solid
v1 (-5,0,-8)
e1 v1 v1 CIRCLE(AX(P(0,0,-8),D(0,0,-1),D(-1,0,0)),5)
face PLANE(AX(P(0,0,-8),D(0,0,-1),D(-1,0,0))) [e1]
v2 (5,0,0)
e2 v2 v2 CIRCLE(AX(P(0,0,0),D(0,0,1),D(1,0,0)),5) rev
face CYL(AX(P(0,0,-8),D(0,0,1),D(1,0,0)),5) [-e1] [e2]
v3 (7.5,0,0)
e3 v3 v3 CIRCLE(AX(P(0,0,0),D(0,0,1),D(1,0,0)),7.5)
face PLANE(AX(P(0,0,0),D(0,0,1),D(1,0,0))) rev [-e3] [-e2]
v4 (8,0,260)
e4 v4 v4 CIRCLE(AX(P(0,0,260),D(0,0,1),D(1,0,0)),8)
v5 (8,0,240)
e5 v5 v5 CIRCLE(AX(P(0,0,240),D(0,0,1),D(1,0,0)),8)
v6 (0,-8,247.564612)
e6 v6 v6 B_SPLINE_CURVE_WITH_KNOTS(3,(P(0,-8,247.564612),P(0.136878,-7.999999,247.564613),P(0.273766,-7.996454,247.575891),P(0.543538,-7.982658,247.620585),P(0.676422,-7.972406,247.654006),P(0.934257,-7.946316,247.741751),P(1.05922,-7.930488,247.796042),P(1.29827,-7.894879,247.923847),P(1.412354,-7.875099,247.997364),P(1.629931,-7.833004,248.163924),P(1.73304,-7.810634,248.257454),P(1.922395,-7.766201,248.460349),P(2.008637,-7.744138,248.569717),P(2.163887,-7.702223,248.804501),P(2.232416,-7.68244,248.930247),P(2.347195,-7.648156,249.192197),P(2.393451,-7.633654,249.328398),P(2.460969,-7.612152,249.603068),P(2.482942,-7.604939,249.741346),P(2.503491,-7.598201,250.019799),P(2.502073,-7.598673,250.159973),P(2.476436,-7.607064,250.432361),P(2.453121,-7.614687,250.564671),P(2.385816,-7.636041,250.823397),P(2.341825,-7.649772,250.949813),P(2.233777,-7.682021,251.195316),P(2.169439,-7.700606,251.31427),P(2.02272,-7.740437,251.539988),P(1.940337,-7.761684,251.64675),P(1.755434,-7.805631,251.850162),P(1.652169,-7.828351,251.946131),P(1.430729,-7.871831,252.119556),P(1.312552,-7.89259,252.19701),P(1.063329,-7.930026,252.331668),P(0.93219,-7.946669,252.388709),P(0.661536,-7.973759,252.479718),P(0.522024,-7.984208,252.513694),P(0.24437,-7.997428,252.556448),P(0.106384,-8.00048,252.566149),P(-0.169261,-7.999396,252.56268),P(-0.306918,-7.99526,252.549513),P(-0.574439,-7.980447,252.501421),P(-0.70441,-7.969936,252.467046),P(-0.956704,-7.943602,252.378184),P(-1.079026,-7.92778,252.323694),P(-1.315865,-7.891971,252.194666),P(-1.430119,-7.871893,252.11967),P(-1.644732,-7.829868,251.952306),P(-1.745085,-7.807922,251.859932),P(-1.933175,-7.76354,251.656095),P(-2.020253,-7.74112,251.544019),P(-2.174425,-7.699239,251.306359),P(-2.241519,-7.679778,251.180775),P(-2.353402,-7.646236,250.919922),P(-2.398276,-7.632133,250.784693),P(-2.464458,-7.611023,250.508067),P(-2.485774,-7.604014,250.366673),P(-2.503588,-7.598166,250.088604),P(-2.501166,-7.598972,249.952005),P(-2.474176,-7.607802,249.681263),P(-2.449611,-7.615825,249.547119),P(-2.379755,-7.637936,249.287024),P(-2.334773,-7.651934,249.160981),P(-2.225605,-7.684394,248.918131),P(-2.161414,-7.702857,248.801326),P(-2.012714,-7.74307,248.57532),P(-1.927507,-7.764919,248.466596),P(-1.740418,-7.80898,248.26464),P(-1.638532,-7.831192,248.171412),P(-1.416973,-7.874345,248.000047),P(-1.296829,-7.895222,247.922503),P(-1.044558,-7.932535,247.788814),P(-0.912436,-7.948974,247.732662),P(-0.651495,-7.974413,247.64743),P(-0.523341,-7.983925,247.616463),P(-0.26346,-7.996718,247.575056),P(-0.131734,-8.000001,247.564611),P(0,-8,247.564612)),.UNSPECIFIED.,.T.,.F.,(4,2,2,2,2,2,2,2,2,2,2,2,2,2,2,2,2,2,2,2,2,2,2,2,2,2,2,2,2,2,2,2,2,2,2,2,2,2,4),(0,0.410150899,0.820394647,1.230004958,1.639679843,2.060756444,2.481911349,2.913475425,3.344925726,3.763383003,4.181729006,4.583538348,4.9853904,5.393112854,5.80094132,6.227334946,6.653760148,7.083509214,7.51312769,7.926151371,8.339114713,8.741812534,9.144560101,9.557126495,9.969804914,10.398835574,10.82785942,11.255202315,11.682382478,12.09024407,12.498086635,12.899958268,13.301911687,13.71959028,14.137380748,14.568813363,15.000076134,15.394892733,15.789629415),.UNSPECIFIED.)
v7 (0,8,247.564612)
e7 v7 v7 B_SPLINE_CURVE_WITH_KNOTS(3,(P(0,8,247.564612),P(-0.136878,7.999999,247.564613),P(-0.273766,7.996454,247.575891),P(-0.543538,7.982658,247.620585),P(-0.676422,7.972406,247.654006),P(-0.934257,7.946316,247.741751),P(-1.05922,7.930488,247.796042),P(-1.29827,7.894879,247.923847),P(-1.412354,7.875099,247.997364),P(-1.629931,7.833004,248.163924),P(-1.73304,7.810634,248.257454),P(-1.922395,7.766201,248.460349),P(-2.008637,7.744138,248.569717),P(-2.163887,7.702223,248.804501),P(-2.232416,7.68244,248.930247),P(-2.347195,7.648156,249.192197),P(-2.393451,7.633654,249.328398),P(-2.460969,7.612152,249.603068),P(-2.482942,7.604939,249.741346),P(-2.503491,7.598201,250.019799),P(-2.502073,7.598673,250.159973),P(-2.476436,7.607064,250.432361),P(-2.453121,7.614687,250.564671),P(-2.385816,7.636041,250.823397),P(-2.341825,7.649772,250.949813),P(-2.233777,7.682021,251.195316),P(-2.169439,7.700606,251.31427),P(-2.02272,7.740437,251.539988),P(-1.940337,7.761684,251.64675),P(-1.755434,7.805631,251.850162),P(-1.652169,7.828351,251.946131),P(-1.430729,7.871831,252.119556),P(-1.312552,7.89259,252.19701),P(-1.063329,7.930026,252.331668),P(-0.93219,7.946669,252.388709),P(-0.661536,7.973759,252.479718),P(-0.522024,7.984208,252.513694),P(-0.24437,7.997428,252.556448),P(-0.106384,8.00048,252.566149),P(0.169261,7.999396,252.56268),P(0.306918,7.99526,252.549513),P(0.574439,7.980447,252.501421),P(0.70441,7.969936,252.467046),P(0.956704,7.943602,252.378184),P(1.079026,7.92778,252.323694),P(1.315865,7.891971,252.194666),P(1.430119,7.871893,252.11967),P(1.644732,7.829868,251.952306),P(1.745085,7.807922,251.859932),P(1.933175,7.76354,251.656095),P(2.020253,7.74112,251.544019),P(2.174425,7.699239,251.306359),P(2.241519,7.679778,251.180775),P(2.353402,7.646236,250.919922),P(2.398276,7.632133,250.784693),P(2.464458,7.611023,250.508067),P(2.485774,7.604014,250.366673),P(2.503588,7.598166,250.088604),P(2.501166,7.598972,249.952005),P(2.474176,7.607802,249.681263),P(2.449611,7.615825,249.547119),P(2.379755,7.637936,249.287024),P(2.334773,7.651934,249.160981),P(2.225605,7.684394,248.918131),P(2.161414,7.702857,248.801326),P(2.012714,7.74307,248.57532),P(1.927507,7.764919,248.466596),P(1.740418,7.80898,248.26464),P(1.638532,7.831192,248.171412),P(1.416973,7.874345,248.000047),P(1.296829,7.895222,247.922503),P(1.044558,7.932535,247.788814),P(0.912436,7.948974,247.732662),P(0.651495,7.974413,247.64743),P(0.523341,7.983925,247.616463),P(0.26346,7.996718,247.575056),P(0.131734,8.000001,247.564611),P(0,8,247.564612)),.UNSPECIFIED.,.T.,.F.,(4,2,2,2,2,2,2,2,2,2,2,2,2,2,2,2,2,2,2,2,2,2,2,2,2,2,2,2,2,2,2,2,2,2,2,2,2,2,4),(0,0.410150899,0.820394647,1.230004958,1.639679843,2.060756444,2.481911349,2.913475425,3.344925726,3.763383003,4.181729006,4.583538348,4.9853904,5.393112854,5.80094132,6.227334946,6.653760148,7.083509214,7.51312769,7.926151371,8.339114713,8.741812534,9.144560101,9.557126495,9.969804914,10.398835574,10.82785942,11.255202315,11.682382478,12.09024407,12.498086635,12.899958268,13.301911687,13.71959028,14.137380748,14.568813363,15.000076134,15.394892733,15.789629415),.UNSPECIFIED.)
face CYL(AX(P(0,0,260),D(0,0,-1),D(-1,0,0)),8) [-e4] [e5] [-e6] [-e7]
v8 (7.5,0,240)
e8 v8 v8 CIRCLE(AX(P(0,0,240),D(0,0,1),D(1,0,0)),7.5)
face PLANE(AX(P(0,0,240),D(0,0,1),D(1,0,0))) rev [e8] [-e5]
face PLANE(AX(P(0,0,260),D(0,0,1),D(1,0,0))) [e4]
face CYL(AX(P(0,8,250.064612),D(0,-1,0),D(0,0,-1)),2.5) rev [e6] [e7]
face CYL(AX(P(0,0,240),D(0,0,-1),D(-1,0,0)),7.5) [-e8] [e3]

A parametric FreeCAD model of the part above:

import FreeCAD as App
import Part
import Sketcher

V = App.Vector

doc = App.newDocument("Part")
body = doc.addObject("PartDesign::Body", "Body")

# Sketch on XY plane
sketch1 = body.newObject("Sketcher::SketchObject", "Sketch")
sketch1.AttachmentSupport = (doc.getObject("XY_Plane"), [""])
sketch1.MapMode = "FlatFace"
sketch1.addGeometry(Part.Circle(V(0, 0, 0), V(0, 0, 1), 8), False)
sketch1.addConstraint(Sketcher.Constraint("Coincident", 0, 3, -1, 1))
sketch1.addConstraint(Sketcher.Constraint("Diameter", 0, 15.0))
pad1 = body.newObject("PartDesign::Pad", "Pad")
pad1.Profile = sketch1
pad1.Length = 240

# Sketch on XY plane
sketch2 = body.newObject("Sketcher::SketchObject", "Sketch001")
sketch2.AttachmentSupport = (doc.getObject("XY_Plane"), [""])
sketch2.MapMode = "FlatFace"
sketch2.AttachmentOffset = App.Placement(V(0, 0, 240), App.Rotation())
sketch2.addGeometry(Part.Circle(V(0, 0, 0), V(0, 0, 1), 8), False)
sketch2.addConstraint(Sketcher.Constraint("Coincident", 0, 3, -1, 1))
sketch2.addConstraint(Sketcher.Constraint("Diameter", 0, 16.0))
pad2 = body.newObject("PartDesign::Pad", "Pad001")
pad2.Profile = sketch2
pad2.Length = 20

# Sketch on XY plane
sketch3 = body.newObject("Sketcher::SketchObject", "Sketch002")
sketch3.AttachmentSupport = (doc.getObject("XY_Plane"), [""])
sketch3.MapMode = "FlatFace"
sketch3.addGeometry(Part.Circle(V(0, 0, 0), V(0, 0, 1), 5), False)
sketch3.addConstraint(Sketcher.Constraint("Coincident", 0, 3, -1, 1))
sketch3.addConstraint(Sketcher.Constraint("Diameter", 0, 10.0))
pad3 = body.newObject("PartDesign::Pad", "Pad002")
pad3.Profile = sketch3
pad3.Length = 8
pad3.Reversed = True

# Sketch on XZ plane
sketch4 = body.newObject("Sketcher::SketchObject", "Sketch003")
sketch4.AttachmentSupport = (doc.getObject("XZ_Plane"), [""])
sketch4.MapMode = "FlatFace"
sketch4.addGeometry(Part.Circle(V(0, 250.1, 0), V(0, 0, 1), 2.5), False)
sketch4.addConstraint(Sketcher.Constraint("PointOnObject", 0, 3, -2))
sketch4.addConstraint(Sketcher.Constraint("Diameter", 0, 5.0))
sketch4.addConstraint(Sketcher.Constraint("DistanceY", -1, 1, 0, 3, 250.064612))
pocket1 = body.newObject("PartDesign::Pocket", "Pocket")
pocket1.Profile = sketch4
pocket1.Type = "ThroughAll"
pocket1.Midplane = True

doc.recompute()
